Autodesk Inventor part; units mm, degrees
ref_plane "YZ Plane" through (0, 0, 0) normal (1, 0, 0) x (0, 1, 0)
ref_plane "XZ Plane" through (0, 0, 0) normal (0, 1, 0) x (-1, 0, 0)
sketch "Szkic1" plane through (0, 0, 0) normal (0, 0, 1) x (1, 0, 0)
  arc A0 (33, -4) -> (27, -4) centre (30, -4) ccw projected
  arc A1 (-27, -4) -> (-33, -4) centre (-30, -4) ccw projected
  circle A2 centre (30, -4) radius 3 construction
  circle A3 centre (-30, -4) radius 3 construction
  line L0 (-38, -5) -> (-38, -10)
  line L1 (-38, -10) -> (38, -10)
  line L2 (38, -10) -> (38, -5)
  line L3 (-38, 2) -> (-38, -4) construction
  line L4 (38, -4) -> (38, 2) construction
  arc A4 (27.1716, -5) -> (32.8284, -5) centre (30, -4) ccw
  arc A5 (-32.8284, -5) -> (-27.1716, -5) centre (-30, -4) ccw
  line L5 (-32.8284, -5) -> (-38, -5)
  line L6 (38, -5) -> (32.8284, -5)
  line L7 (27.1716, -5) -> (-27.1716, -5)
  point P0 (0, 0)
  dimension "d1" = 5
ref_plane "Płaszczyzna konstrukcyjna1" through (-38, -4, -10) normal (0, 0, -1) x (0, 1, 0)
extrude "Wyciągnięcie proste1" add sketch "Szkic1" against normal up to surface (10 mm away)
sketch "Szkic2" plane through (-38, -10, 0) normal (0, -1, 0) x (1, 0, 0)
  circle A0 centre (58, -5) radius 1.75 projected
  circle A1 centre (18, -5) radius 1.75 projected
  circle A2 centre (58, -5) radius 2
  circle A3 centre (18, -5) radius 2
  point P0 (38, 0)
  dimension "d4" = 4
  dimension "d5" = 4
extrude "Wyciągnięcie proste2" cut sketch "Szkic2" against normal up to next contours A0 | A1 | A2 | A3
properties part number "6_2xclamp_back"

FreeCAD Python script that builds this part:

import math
import FreeCAD as App
import Part
import Sketcher
from FreeCAD import Vector
Q = App.Units.Quantity

doc = App.newDocument("Part")
params = doc.addObject("Spreadsheet::Sheet", "Params")
for row, (alias, value) in enumerate([
    ("sketch1_height", "5 mm"),
    ("sketch1_radius", "3 mm"),
    ("sketch1_width", "76 mm"),
    ("pad1_length", "10 mm"),
    ("sketch2_diameter", "4 mm"),
], start=1):
    params.set(f"A{row}", alias)
    params.set(f"B{row}", "=" + value)
    params.setAlias(f"B{row}", alias)

body = doc.addObject("PartDesign::Body", "Body")

sketch1 = body.newObject("Sketcher::SketchObject", "Sketch")
sketch1.AttachmentSupport = (doc.getObject("XY_Plane"), [""])
sketch1.MapMode = "FlatFace"
sketch1.addGeometry([
    Part.LineSegment(Vector(-32.8, -5, 0), Vector(-38, -5, 0)),
    Part.LineSegment(Vector(-38, -5, 0), Vector(-38, -10, 0)),
    Part.LineSegment(Vector(-38, -10, 0), Vector(38, -10, 0)),
    Part.LineSegment(Vector(38, -10, 0), Vector(38, -5, 0)),
    Part.LineSegment(Vector(38, -5, 0), Vector(32.8, -5, 0)),
    Part.ArcOfCircle(Part.Circle(Vector(30, -4, 0), Vector(0, 0, 1), 3), math.radians(-161), math.radians(-19)),
    Part.LineSegment(Vector(27.2, -5, 0), Vector(-27.2, -5, 0)),
    Part.ArcOfCircle(Part.Circle(Vector(-30, -4, 0), Vector(0, 0, 1), 3), math.radians(-161), math.radians(-19)),
], False)
sketch1.addConstraint([
    Sketcher.Constraint("Coincident", 0, 2, 1, 1),
    Sketcher.Constraint("Coincident", 1, 2, 2, 1),
    Sketcher.Constraint("Coincident", 2, 2, 3, 1),
    Sketcher.Constraint("Coincident", 3, 2, 4, 1),
    Sketcher.Constraint("Coincident", 4, 2, 5, 2),
    Sketcher.Constraint("Coincident", 5, 1, 6, 1),
    Sketcher.Constraint("Coincident", 6, 2, 7, 2),
    Sketcher.Constraint("Coincident", 7, 1, 0, 1),
    Sketcher.Constraint("Horizontal", 0),
    Sketcher.Constraint("Vertical", 1),
    Sketcher.Constraint("Horizontal", 2),
    Sketcher.Constraint("Vertical", 3),
    Sketcher.Constraint("Horizontal", 4),
    Sketcher.Constraint("Horizontal", 6),
    Sketcher.Constraint("Equal", 5, 7),
    Sketcher.Constraint("Symmetric", 5, 3, 7, 3, -2),
    Sketcher.Constraint("Symmetric", 0, 2, 3, 2, -2),
    Sketcher.Constraint("Horizontal", 4, 2, 5, 1),
    Sketcher.Constraint("DistanceY", 1, 2, 1, 1, Q("5 mm")),
    Sketcher.Constraint("DistanceY", 0, 2, -1, 1, Q("5 mm")),
    Sketcher.Constraint("Radius", 5, Q("3 mm")),
    Sketcher.Constraint("DistanceX", 2, 1, 2, 2, Q("76 mm")),
    Sketcher.Constraint("DistanceX", -1, 1, 5, 3, Q("30 mm")),
    Sketcher.Constraint("DistanceY", 5, 3, -1, 1, Q("4 mm")),
])
sketch1.setExpression("Constraints[18]", "Params.sketch1_height")
sketch1.setExpression("Constraints[20]", "Params.sketch1_radius")
sketch1.setExpression("Constraints[21]", "Params.sketch1_width")
pad1 = body.newObject("PartDesign::Pad", "Pad")
pad1.Profile = sketch1
pad1.setExpression("Length", "Params.pad1_length")
pad1.Reversed = True

sketch2 = body.newObject("Sketcher::SketchObject", "Sketch001")
sketch2.AttachmentSupport = (doc.getObject("XZ_Plane"), [""])
sketch2.MapMode = "FlatFace"
sketch2.AttachmentOffset = App.Placement(Vector(0, 0, 10), App.Rotation())
sketch2.addGeometry([
    Part.Circle(Vector(20, -5, 0), Vector(0, 0, 1), 2),
    Part.Circle(Vector(-20, -5, 0), Vector(0, 0, 1), 2),
], False)
sketch2.addConstraint([
    Sketcher.Constraint("Equal", 0, 1),
    Sketcher.Constraint("Symmetric", 0, 3, 1, 3, -2),
    Sketcher.Constraint("Diameter", 0, Q("4 mm")),
    Sketcher.Constraint("DistanceX", -1, 1, 0, 3, Q("20 mm")),
    Sketcher.Constraint("DistanceY", 0, 3, -1, 1, Q("5 mm")),
])
sketch2.setExpression("Constraints[2]", "Params.sketch2_diameter")
pocket1 = body.newObject("PartDesign::Pocket", "Pocket")
pocket1.Profile = sketch2
pocket1.Type = "UpToFirst"

doc.recompute()
